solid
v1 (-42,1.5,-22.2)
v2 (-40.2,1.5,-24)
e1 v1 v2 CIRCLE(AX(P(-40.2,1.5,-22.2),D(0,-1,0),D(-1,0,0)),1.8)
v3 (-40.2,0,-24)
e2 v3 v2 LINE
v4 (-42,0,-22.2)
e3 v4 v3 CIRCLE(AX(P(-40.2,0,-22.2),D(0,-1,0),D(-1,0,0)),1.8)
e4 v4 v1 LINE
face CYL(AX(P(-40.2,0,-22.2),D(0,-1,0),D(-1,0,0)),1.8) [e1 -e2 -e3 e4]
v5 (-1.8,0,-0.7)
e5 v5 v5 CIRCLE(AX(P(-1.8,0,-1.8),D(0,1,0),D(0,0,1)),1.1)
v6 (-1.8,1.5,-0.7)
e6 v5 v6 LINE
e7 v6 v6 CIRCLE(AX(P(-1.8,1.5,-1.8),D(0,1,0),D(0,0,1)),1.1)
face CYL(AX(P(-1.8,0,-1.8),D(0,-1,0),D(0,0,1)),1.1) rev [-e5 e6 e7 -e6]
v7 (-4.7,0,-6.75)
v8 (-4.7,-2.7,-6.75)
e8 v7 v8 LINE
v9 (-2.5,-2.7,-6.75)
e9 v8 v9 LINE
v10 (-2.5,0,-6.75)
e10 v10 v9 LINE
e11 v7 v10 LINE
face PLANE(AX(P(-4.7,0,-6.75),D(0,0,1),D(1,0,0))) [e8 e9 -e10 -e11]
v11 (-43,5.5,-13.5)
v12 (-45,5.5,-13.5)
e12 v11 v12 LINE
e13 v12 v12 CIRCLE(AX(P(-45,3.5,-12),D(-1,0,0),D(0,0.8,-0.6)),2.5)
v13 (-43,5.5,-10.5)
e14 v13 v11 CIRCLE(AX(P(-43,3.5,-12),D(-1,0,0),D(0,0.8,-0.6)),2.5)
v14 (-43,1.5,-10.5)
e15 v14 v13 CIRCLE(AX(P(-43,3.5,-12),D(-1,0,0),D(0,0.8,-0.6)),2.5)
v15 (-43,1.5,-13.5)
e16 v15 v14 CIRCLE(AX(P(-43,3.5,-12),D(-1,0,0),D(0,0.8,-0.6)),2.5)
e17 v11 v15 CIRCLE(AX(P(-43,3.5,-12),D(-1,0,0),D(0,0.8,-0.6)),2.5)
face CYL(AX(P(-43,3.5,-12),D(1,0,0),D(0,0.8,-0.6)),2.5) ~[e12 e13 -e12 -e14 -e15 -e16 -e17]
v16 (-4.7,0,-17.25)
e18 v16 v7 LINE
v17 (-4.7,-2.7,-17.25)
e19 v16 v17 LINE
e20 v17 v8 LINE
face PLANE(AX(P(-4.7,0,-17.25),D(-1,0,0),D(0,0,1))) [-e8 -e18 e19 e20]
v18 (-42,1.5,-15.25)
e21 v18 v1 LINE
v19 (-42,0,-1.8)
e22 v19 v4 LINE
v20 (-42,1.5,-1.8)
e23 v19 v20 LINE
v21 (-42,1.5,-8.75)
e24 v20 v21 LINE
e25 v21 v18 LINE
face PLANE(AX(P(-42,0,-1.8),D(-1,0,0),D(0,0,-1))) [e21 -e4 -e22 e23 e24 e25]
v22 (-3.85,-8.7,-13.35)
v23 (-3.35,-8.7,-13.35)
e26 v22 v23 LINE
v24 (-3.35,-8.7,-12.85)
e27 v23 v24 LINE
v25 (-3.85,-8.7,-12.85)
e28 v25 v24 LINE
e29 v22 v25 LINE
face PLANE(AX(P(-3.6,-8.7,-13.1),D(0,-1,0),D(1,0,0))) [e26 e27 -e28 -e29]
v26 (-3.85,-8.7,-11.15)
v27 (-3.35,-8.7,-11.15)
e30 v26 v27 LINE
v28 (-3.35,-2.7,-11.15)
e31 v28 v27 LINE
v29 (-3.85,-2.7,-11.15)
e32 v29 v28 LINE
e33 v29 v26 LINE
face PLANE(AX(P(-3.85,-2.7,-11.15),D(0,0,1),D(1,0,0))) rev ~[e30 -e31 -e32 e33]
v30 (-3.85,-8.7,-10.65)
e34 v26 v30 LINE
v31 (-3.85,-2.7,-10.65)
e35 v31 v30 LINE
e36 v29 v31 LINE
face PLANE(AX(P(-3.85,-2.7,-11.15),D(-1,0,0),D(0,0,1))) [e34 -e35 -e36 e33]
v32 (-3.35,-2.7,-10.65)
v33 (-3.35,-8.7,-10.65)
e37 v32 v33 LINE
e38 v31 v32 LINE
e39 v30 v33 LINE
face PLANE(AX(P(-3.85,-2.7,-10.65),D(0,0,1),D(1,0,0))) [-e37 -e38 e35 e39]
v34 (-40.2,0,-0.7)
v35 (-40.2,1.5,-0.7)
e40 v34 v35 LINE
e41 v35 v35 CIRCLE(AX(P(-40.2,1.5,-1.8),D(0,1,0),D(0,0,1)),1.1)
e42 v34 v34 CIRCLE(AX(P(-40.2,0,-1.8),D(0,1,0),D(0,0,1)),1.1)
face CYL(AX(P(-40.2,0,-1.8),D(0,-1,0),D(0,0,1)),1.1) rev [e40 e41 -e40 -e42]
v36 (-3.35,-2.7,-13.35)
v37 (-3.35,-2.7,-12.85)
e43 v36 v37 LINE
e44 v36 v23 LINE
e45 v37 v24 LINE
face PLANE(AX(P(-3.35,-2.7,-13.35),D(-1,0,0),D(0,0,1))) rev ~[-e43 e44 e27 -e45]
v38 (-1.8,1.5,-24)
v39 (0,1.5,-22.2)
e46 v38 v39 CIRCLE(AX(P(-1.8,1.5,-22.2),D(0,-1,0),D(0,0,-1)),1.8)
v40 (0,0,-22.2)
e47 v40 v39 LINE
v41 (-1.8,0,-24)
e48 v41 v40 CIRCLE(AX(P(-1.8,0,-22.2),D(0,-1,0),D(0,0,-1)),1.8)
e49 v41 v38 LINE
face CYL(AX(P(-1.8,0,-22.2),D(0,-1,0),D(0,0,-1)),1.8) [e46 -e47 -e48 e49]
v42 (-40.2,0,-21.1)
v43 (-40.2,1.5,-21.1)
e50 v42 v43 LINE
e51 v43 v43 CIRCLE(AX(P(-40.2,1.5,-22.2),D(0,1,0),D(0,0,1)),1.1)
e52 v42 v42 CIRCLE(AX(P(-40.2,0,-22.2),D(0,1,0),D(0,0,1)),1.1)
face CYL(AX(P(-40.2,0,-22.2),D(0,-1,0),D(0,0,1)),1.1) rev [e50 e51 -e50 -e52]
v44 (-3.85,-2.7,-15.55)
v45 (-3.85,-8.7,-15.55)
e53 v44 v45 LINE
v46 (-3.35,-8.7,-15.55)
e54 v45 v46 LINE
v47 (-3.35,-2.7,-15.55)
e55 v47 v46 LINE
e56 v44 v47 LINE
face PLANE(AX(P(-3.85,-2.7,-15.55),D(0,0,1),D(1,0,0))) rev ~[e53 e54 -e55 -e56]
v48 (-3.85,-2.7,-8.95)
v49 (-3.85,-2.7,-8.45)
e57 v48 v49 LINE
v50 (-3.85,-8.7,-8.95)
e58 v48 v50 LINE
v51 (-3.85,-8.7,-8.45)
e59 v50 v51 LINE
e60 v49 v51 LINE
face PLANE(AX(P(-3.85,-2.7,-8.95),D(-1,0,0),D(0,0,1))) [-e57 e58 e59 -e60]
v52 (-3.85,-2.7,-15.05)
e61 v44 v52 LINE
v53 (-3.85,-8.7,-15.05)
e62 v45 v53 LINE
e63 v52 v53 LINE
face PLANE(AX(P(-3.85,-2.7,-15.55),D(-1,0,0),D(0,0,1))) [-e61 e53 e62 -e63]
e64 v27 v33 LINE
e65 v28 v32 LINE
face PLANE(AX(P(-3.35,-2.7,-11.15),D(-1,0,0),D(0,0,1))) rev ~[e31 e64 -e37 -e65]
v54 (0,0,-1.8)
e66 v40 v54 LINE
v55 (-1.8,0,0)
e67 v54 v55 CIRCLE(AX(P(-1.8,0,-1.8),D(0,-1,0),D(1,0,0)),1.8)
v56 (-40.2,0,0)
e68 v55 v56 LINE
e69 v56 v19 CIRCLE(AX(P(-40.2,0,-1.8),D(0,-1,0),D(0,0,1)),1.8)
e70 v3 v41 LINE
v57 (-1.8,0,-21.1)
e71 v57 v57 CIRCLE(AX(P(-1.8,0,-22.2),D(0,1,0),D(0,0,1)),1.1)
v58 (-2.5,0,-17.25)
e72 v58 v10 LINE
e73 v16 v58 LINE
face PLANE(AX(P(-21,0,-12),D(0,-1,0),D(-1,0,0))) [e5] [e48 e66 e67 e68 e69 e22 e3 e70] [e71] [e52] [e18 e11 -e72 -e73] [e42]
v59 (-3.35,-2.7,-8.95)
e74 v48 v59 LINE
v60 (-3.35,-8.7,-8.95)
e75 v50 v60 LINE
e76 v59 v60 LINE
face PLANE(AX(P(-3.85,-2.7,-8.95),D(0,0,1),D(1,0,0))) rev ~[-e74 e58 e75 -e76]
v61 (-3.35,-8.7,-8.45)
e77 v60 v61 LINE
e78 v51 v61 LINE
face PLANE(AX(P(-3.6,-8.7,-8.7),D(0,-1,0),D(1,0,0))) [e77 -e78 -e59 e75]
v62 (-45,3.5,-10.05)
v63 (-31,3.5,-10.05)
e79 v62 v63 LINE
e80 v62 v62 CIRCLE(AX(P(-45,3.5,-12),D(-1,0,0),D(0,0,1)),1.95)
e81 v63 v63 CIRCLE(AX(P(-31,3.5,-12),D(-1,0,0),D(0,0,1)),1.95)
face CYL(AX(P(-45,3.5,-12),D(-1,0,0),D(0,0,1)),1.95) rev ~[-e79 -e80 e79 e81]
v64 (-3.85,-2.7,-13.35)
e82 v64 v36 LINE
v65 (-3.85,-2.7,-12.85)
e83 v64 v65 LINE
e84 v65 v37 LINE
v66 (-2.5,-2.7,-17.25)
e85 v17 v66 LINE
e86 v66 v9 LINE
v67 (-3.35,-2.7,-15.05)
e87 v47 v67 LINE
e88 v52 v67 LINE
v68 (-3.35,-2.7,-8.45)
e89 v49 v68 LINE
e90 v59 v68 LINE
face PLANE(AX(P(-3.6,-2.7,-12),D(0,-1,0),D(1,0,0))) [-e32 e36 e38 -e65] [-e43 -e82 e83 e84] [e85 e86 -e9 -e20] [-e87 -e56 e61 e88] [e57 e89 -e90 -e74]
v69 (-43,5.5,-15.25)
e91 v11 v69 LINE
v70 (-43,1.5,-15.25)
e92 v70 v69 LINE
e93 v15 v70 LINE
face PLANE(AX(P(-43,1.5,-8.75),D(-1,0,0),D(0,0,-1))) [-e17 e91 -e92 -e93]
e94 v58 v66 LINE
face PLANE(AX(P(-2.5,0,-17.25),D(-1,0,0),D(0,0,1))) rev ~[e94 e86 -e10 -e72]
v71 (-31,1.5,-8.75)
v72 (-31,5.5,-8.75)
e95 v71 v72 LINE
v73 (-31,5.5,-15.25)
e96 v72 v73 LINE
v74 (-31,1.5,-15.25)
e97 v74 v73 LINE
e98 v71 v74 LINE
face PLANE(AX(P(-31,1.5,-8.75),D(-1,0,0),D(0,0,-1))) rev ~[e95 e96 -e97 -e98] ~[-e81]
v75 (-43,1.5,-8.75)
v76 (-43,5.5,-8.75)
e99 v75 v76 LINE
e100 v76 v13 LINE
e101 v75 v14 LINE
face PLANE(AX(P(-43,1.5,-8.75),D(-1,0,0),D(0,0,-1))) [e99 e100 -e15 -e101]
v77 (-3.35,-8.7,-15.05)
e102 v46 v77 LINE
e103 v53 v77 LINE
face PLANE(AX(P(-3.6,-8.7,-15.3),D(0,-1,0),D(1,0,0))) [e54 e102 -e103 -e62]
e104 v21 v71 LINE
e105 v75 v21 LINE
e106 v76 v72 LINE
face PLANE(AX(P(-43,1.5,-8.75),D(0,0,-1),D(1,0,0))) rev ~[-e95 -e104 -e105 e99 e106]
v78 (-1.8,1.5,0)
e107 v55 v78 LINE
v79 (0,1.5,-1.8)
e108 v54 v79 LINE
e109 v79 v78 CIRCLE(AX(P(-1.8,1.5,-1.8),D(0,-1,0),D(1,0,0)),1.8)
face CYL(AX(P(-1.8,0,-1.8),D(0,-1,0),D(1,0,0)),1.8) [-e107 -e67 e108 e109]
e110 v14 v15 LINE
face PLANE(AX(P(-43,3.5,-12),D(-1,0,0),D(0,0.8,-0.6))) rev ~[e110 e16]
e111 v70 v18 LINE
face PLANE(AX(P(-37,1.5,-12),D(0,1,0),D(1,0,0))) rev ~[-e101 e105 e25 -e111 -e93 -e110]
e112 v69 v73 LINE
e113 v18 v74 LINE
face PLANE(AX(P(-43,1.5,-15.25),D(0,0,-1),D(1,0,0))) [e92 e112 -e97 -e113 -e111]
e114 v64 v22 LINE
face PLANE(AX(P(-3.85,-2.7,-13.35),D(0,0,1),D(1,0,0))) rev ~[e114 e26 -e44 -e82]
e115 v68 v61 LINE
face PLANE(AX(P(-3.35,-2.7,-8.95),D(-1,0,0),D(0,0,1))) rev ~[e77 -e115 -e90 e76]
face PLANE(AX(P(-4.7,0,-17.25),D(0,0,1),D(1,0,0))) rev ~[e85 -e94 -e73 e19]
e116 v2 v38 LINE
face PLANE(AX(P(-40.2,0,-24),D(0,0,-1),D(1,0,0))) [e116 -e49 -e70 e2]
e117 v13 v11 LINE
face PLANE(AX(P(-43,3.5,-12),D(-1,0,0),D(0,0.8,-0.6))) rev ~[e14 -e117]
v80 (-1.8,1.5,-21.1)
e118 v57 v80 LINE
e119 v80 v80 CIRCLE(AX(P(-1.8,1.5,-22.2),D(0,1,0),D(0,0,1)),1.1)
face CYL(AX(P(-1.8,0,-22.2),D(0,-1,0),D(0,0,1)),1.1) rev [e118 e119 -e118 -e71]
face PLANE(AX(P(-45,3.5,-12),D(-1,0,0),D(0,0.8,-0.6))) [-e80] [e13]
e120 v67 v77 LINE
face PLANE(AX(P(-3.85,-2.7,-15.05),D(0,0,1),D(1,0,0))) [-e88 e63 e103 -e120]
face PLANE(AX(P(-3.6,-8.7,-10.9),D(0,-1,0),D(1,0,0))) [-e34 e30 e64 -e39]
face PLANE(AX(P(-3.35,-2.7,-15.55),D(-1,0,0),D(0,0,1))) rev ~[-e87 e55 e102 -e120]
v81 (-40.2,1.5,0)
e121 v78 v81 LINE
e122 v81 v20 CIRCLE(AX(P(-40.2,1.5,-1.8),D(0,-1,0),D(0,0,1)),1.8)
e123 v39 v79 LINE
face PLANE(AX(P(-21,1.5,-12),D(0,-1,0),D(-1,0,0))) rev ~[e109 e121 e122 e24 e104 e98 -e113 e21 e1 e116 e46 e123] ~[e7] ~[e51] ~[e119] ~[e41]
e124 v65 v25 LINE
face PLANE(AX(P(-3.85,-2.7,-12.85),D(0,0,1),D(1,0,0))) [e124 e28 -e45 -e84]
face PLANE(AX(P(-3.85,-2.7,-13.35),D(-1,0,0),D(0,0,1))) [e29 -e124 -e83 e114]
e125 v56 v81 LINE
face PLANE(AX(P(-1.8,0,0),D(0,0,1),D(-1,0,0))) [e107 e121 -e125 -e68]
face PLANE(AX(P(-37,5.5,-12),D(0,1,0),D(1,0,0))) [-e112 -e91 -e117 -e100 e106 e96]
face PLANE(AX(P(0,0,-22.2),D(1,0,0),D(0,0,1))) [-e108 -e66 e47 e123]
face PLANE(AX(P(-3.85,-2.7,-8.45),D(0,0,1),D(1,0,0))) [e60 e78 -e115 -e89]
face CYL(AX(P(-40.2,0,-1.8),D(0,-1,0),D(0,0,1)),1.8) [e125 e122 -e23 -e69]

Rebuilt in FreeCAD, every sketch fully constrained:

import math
import FreeCAD as App
import Part
import Sketcher


def add_polygon(sketch, points):
    """Adds a closed chain of lines whose ends are joined by coincident constraints."""
    first, n = sketch.GeometryCount, len(points)
    for a, b in zip(points, points[1:] + points[:1]):
        sketch.addGeometry(Part.LineSegment(App.Vector(*a, 0), App.Vector(*b, 0)), False)
    for i in range(n):
        sketch.addConstraint(Sketcher.Constraint("Coincident", first + i, 2, first + (i + 1) % n, 1))

doc = App.newDocument("Part")
params = doc.addObject("Spreadsheet::Sheet", "Params")
for row, (alias, value) in enumerate([
    ("sketch1_diameter", "2.2 mm"),
    ("sketch1_radius", "1.8 mm"),
    ("sketch1_width", "38.4 mm"),
    ("sketch1_height", "20.4 mm"),
    ("pad1_length", "1.5 mm"),
    ("sketch2_width", "12 mm"),
    ("sketch2_height", "6.5 mm"),
    ("pad2_length", "4 mm"),
    ("sketch3_diameter", "5 mm"),
    ("pad3_length", "2 mm"),
    ("sketch4_diameter", "3.9 mm"),
    ("pocket1_length", "15.027586 mm"),
    ("sketch5_width", "2.2 mm"),
    ("sketch5_height", "10.5 mm"),
    ("pad4_length", "2.7 mm"),
    ("sketch6_width", "0.5 mm"),
    ("pad5_length", "6 mm"),
    ("linearpattern_pitch", "2.2 mm"),
], start=1):
    params.set(f"A{row}", alias)
    params.set(f"B{row}", "=" + value)
    params.setAlias(f"B{row}", alias)

body = doc.addObject("PartDesign::Body", "Body")

sketch1 = body.newObject("Sketcher::SketchObject", "Sketch")
sketch1.AttachmentSupport = (doc.getObject("XZ_Plane"), [""])
sketch1.MapMode = "FlatFace"
sketch1.addGeometry([
    Part.LineSegment(App.Vector(-40.2, 0, 0), App.Vector(-1.8, 0, 0)),
    Part.ArcOfCircle(Part.Circle(App.Vector(-1.8, -1.8, 0), App.Vector(0, 0, 1), 1.8), math.radians(0), math.radians(90)),
    Part.LineSegment(App.Vector(0, -1.8, 0), App.Vector(0, -22.2, 0)),
    Part.ArcOfCircle(Part.Circle(App.Vector(-1.8, -22.2, 0), App.Vector(0, 0, 1), 1.8), math.radians(-90), math.radians(0)),
    Part.LineSegment(App.Vector(-1.8, -24, 0), App.Vector(-40.2, -24, 0)),
    Part.ArcOfCircle(Part.Circle(App.Vector(-40.2, -22.2, 0), App.Vector(0, 0, 1), 1.8), math.radians(180), math.radians(270)),
    Part.LineSegment(App.Vector(-42, -22.2, 0), App.Vector(-42, -1.8, 0)),
    Part.ArcOfCircle(Part.Circle(App.Vector(-40.2, -1.8, 0), App.Vector(0, 0, 1), 1.8), math.radians(90), math.radians(180)),
    Part.Circle(App.Vector(-1.8, -1.8, 0), App.Vector(0, 0, 1), 1.1),
    Part.Circle(App.Vector(-40.2, -1.8, 0), App.Vector(0, 0, 1), 1.1),
    Part.Circle(App.Vector(-1.8, -22.2, 0), App.Vector(0, 0, 1), 1.1),
    Part.Circle(App.Vector(-40.2, -22.2, 0), App.Vector(0, 0, 1), 1.1),
], False)
sketch1.addConstraint([
    Sketcher.Constraint("Tangent", 0, 2, 1, 2),
    Sketcher.Constraint("Tangent", 1, 1, 2, 1),
    Sketcher.Constraint("Tangent", 2, 2, 3, 2),
    Sketcher.Constraint("Tangent", 3, 1, 4, 1),
    Sketcher.Constraint("Tangent", 4, 2, 5, 2),
    Sketcher.Constraint("Tangent", 5, 1, 6, 1),
    Sketcher.Constraint("Tangent", 6, 2, 7, 2),
    Sketcher.Constraint("Tangent", 7, 1, 0, 1),
    Sketcher.Constraint("Horizontal", 0),
    Sketcher.Constraint("Vertical", 2),
    Sketcher.Constraint("Horizontal", 4),
    Sketcher.Constraint("Vertical", 6),
    Sketcher.Constraint("Coincident", 8, 3, 1, 3),
    Sketcher.Constraint("Coincident", 9, 3, 7, 3),
    Sketcher.Constraint("Coincident", 10, 3, 3, 3),
    Sketcher.Constraint("Coincident", 11, 3, 5, 3),
    Sketcher.Constraint("Equal", 1, 3),
    Sketcher.Constraint("Equal", 3, 5),
    Sketcher.Constraint("Equal", 5, 7),
    Sketcher.Constraint("Equal", 8, 9),
    Sketcher.Constraint("Equal", 9, 10),
    Sketcher.Constraint("Equal", 10, 11),
    Sketcher.Constraint("PointOnObject", 0, 2, -1),
    Sketcher.Constraint("PointOnObject", 1, 1, -2),
    Sketcher.Constraint("Diameter", 8, 2.2),
    Sketcher.Constraint("Radius", 1, 1.8),
    Sketcher.Constraint("DistanceX", 0, 1, 0, 2, 38.4),
    Sketcher.Constraint("DistanceY", 2, 2, 2, 1, 20.4),
])
sketch1.setExpression("Constraints[24]", "Params.sketch1_diameter")
sketch1.setExpression("Constraints[25]", "Params.sketch1_radius")
sketch1.setExpression("Constraints[26]", "Params.sketch1_width")
sketch1.setExpression("Constraints[27]", "Params.sketch1_height")
pad1 = body.newObject("PartDesign::Pad", "Pad")
pad1.Profile = sketch1
pad1.setExpression("Length", "Params.pad1_length")
pad1.Reversed = True

sketch2 = body.newObject("Sketcher::SketchObject", "Sketch001")
sketch2.AttachmentSupport = (doc.getObject("XZ_Plane"), [""])
sketch2.MapMode = "FlatFace"
sketch2.AttachmentOffset = App.Placement(App.Vector(0, 0, -1.5), App.Rotation())
add_polygon(sketch2, [(-43, -15.25), (-43, -8.75), (-31, -8.75), (-31, -15.25)])
sketch2.addConstraint([
    Sketcher.Constraint("Vertical", 0),
    Sketcher.Constraint("Horizontal", 1),
    Sketcher.Constraint("Vertical", 2),
    Sketcher.Constraint("Horizontal", 3),
    Sketcher.Constraint("DistanceX", 1, 1, 1, 2, 12.0),
    Sketcher.Constraint("DistanceY", 0, 1, 0, 2, 6.5),
    Sketcher.Constraint("DistanceX", 0, 2, -1, 1, 43.0),
    Sketcher.Constraint("DistanceY", 0, 2, -1, 1, 8.75),
])
sketch2.setExpression("Constraints[8]", "Params.sketch2_width")
sketch2.setExpression("Constraints[9]", "Params.sketch2_height")
pad2 = body.newObject("PartDesign::Pad", "Pad001")
pad2.Profile = sketch2
pad2.setExpression("Length", "Params.pad2_length")
pad2.Reversed = True

sketch3 = body.newObject("Sketcher::SketchObject", "Sketch002")
sketch3.AttachmentSupport = (doc.getObject("YZ_Plane"), [""])
sketch3.MapMode = "FlatFace"
sketch3.AttachmentOffset = App.Placement(App.Vector(0, 0, -43), App.Rotation())
sketch3.addGeometry(Part.Circle(App.Vector(3.5, -12, 0), App.Vector(0, 0, 1), 2.5), False)
sketch3.addConstraint([
    Sketcher.Constraint("Diameter", 0, 5.0),
    Sketcher.Constraint("DistanceY", 0, 3, -1, 1, 12.0),
    Sketcher.Constraint("DistanceX", -1, 1, 0, 3, 3.5),
])
sketch3.setExpression("Constraints[0]", "Params.sketch3_diameter")
pad3 = body.newObject("PartDesign::Pad", "Pad002")
pad3.Profile = sketch3
pad3.setExpression("Length", "Params.pad3_length")
pad3.Reversed = True

sketch4 = body.newObject("Sketcher::SketchObject", "Sketch003")
sketch4.AttachmentSupport = (doc.getObject("YZ_Plane"), [""])
sketch4.MapMode = "FlatFace"
sketch4.AttachmentOffset = App.Placement(App.Vector(0, 0, -45), App.Rotation())
sketch4.addGeometry(Part.Circle(App.Vector(3.5, -12, 0), App.Vector(0, 0, 1), 1.95), False)
sketch4.addConstraint([
    Sketcher.Constraint("Diameter", 0, 3.9),
    Sketcher.Constraint("DistanceY", 0, 3, -1, 1, 12.0),
    Sketcher.Constraint("DistanceX", -1, 1, 0, 3, 3.5),
])
sketch4.setExpression("Constraints[0]", "Params.sketch4_diameter")
pocket1 = body.newObject("PartDesign::Pocket", "Pocket")
pocket1.Profile = sketch4
pocket1.setExpression("Length", "Params.pocket1_length")
pocket1.Reversed = True

sketch5 = body.newObject("Sketcher::SketchObject", "Sketch004")
sketch5.AttachmentSupport = (doc.getObject("XZ_Plane"), [""])
sketch5.MapMode = "FlatFace"
add_polygon(sketch5, [(-4.7, -6.75), (-4.7, -17.25), (-2.5, -17.25), (-2.5, -6.75)])
sketch5.addConstraint([
    Sketcher.Constraint("Vertical", 0),
    Sketcher.Constraint("Horizontal", 1),
    Sketcher.Constraint("Vertical", 2),
    Sketcher.Constraint("Horizontal", 3),
    Sketcher.Constraint("DistanceX", 1, 1, 1, 2, 2.2),
    Sketcher.Constraint("DistanceY", 0, 2, 0, 1, 10.5),
    Sketcher.Constraint("DistanceX", 0, 2, -1, 1, 4.7),
    Sketcher.Constraint("DistanceY", 0, 2, -1, 1, 17.25),
])
sketch5.setExpression("Constraints[8]", "Params.sketch5_width")
sketch5.setExpression("Constraints[9]", "Params.sketch5_height")
pad4 = body.newObject("PartDesign::Pad", "Pad003")
pad4.Profile = sketch5
pad4.setExpression("Length", "Params.pad4_length")

sketch6 = body.newObject("Sketcher::SketchObject", "Sketch005")
sketch6.AttachmentSupport = (doc.getObject("XZ_Plane"), [""])
sketch6.MapMode = "FlatFace"
sketch6.AttachmentOffset = App.Placement(App.Vector(0, 0, 2.7), App.Rotation())
add_polygon(sketch6, [(-3.85, -8.45), (-3.85, -8.95), (-3.35, -8.95), (-3.35, -8.45)])
sketch6.addConstraint([
    Sketcher.Constraint("Vertical", 0),
    Sketcher.Constraint("Horizontal", 1),
    Sketcher.Constraint("Vertical", 2),
    Sketcher.Constraint("Horizontal", 3),
    Sketcher.Constraint("Equal", 3, 0),
    Sketcher.Constraint("DistanceX", 1, 1, 1, 2, 0.5),
    Sketcher.Constraint("DistanceX", 0, 2, -1, 1, 3.85),
    Sketcher.Constraint("DistanceY", 0, 2, -1, 1, 8.95),
])
sketch6.setExpression("Constraints[9]", "Params.sketch6_width")
pad5 = body.newObject("PartDesign::Pad", "Pad004")
pad5.Profile = sketch6
pad5.setExpression("Length", "Params.pad5_length")
doc.recompute()

linearpattern = body.newObject("PartDesign::LinearPattern", "LinearPattern")
linearpattern.Originals = [pad5]
linearpattern.Direction = (doc.getObject("Z_Axis"), [""])
linearpattern.Mode = "offset"
linearpattern.setExpression("Offset", "Params.linearpattern_pitch")
linearpattern.Occurrences = 4
linearpattern.Reversed = True
body.Tip = linearpattern

doc.recompute()
